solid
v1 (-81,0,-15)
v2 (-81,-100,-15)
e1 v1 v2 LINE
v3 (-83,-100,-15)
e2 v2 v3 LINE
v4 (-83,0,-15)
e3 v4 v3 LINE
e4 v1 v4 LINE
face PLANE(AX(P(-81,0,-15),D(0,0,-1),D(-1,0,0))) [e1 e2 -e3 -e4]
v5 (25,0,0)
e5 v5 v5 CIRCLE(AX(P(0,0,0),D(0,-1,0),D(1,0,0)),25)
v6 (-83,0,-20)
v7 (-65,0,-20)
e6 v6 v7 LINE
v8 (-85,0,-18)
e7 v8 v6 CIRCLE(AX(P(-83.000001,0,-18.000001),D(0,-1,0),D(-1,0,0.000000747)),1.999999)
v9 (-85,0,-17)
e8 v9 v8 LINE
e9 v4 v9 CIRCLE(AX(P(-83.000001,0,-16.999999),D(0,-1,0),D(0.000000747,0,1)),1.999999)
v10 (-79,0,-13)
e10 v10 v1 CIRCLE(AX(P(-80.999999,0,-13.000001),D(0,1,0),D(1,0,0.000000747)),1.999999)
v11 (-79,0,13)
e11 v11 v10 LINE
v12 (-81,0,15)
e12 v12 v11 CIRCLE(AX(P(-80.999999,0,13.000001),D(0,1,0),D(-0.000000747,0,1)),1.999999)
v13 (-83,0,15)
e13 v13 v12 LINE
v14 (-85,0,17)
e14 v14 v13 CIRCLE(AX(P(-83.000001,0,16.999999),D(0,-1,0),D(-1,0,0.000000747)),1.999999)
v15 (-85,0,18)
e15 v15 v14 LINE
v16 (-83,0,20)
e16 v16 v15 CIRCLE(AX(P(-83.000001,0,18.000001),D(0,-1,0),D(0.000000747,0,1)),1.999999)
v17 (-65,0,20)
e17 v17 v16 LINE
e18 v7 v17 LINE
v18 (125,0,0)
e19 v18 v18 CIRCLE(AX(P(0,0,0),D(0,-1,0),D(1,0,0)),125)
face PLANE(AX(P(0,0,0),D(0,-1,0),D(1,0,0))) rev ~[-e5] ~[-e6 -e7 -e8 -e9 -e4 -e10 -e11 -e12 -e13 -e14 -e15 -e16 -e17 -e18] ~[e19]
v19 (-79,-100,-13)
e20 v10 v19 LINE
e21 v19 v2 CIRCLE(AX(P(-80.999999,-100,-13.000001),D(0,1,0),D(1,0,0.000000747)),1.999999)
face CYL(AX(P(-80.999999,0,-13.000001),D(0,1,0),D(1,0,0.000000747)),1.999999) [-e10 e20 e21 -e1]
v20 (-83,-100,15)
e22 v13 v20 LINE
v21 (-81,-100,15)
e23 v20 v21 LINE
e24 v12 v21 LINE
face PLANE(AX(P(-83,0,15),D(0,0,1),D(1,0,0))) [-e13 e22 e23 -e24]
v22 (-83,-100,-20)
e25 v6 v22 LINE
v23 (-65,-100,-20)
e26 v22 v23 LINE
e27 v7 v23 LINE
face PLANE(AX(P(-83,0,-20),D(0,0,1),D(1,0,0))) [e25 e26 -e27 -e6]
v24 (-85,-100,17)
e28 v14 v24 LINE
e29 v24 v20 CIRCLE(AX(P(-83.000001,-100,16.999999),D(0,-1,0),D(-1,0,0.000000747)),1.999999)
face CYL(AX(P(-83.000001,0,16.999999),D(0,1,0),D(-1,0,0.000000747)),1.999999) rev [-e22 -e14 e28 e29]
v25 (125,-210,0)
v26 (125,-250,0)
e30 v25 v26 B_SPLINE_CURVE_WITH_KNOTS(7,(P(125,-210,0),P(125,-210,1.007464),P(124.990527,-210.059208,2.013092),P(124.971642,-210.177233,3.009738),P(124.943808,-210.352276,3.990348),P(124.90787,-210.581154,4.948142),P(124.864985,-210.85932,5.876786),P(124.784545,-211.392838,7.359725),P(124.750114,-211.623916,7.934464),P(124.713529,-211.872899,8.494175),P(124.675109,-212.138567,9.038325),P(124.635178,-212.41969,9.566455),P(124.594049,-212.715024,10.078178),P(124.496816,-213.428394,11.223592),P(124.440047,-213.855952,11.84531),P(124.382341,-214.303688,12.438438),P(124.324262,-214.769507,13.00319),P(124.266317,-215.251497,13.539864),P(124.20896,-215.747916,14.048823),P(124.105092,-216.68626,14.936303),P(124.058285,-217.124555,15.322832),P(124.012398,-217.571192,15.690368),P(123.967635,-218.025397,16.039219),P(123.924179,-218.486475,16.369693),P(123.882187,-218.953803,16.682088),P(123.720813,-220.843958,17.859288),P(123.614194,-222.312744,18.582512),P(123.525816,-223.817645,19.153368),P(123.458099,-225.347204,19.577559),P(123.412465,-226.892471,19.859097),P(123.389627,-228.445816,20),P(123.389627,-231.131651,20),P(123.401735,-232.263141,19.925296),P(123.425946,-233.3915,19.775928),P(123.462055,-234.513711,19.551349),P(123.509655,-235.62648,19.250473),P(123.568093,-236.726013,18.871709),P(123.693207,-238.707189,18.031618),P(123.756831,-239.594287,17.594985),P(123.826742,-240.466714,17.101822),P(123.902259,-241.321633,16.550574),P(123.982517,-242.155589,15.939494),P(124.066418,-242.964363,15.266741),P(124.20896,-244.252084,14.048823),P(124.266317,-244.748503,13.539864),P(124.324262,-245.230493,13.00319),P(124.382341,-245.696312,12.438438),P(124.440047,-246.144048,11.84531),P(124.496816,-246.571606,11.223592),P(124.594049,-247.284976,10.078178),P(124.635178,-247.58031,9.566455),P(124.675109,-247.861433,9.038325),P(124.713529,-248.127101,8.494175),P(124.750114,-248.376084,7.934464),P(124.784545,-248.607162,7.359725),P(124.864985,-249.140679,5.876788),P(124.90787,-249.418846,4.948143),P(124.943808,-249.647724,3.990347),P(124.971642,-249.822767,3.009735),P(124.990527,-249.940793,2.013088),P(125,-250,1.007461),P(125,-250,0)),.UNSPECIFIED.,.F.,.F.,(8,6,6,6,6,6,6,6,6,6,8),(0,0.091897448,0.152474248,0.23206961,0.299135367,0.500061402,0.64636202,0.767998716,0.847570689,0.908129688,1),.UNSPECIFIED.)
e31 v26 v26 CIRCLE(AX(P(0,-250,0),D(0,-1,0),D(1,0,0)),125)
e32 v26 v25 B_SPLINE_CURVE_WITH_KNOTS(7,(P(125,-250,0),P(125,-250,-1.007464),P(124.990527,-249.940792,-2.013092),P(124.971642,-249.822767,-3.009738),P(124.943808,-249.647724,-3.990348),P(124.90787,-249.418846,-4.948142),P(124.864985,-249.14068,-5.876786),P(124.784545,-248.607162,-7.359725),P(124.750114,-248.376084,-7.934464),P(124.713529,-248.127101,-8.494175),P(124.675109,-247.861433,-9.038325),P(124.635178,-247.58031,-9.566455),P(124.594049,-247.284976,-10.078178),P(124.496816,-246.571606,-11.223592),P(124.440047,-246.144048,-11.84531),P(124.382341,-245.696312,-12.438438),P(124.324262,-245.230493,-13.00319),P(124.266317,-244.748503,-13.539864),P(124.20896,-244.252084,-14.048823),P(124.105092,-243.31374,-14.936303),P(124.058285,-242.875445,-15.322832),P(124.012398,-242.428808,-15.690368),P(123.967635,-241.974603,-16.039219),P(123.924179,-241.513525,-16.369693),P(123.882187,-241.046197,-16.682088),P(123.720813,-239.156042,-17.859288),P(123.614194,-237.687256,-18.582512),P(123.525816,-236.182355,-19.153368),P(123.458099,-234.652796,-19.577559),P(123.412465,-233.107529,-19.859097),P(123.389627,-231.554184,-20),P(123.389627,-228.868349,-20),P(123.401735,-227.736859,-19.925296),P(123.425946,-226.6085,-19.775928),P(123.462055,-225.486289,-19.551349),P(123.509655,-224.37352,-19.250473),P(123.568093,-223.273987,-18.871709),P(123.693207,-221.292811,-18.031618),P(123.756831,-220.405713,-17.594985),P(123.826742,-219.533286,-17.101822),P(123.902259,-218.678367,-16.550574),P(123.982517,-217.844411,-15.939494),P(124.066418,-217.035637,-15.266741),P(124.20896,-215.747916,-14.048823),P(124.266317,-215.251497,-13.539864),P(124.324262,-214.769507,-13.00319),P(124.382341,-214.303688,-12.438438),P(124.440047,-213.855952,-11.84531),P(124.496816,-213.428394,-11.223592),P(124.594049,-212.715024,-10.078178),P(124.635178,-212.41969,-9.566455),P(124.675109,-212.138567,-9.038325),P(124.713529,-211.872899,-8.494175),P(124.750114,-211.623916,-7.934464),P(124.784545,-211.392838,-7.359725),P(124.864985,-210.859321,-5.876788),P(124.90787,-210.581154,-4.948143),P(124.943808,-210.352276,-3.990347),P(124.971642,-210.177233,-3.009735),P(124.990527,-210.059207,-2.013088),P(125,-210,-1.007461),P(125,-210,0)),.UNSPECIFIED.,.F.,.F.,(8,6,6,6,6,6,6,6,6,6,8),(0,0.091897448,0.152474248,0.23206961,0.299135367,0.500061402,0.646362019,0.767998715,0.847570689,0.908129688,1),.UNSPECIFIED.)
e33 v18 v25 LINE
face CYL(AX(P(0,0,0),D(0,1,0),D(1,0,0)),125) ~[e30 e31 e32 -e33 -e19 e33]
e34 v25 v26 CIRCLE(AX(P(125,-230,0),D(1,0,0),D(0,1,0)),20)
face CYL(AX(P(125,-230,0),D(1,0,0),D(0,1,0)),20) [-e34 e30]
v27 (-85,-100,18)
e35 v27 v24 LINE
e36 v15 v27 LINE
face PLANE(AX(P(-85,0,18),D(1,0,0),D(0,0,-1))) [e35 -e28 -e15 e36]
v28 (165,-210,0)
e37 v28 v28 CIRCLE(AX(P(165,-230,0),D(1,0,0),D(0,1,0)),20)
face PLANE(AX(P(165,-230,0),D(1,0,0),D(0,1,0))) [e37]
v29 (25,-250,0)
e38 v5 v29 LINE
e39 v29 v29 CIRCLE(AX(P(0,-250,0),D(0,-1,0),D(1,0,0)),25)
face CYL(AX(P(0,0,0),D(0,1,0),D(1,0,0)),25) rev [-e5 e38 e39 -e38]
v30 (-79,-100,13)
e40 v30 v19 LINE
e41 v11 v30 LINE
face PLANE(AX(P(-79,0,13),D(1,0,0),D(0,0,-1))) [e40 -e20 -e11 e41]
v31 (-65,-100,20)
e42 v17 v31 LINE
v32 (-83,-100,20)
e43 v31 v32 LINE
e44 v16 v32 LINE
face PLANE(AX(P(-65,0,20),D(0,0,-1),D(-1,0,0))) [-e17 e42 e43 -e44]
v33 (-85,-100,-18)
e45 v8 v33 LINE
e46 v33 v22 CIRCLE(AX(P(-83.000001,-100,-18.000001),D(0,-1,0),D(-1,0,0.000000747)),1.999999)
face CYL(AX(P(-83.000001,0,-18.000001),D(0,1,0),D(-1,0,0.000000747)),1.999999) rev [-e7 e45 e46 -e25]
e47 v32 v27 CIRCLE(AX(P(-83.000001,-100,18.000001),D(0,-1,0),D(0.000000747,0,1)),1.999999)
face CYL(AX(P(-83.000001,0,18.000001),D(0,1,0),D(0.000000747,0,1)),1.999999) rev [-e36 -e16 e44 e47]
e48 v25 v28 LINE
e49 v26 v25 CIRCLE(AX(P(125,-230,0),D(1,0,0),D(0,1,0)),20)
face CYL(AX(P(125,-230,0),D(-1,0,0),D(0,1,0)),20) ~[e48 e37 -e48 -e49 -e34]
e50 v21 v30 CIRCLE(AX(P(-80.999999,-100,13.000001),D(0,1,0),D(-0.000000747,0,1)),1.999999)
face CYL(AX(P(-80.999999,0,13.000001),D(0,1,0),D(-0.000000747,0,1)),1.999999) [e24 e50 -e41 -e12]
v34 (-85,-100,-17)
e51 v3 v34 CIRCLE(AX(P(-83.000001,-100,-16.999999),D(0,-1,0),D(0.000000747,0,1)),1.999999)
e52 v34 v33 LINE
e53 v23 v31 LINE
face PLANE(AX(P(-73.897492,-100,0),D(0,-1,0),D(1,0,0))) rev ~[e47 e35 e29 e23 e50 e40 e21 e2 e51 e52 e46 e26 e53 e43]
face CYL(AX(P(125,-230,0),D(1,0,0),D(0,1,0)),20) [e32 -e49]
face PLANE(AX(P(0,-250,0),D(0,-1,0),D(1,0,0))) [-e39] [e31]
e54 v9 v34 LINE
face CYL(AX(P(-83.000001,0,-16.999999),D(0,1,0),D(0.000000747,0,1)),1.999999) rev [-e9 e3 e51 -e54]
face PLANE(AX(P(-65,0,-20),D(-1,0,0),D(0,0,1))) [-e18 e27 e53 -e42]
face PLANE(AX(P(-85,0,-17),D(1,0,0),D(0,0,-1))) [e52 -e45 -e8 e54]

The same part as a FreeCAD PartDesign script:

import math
import FreeCAD as App
import Part
import Sketcher
from FreeCAD import Vector
Q = App.Units.Quantity

doc = App.newDocument("Part")
params = doc.addObject("Spreadsheet::Sheet", "Params")
for row, (alias, value) in enumerate([
    ("sketch1_diameter", "250 mm"),
    ("sketch1_diameter2", "50 mm"),
    ("pad1_length", "250 mm"),
    ("sketch2_radius", "1.999999 mm"),
    ("sketch2_width", "18 mm"),
    ("sketch2_width2", "2 mm"),
    ("sketch2_height", "1 mm"),
    ("sketch2_height2", "26 mm"),
    ("pocket1_length", "100 mm"),
    ("sketch3_diameter", "40 mm"),
    ("pad2_length", "40 mm"),
    ("pad2_length2", "10 mm"),
], start=1):
    params.set(f"A{row}", alias)
    params.set(f"B{row}", "=" + value)
    params.setAlias(f"B{row}", alias)

body = doc.addObject("PartDesign::Body", "Body")

# Sketch on XZ plane
sketch1 = body.newObject("Sketcher::SketchObject", "Sketch")
sketch1.AttachmentSupport = (doc.getObject("XZ_Plane"), [""])
sketch1.MapMode = "FlatFace"
sketch1.addGeometry([
    Part.Circle(Vector(0, 0, 0), Vector(0, 0, 1), 125),
    Part.Circle(Vector(0, 0, 0), Vector(0, 0, 1), 25),
], False)
sketch1.addConstraint([
    Sketcher.Constraint("Coincident", 0, 3, -1, 1),
    Sketcher.Constraint("Coincident", 1, 3, -1, 1),
    Sketcher.Constraint("Diameter", 0, Q("250 mm")),
    Sketcher.Constraint("Diameter", 1, Q("50 mm")),
])
sketch1.setExpression("Constraints[2]", "Params.sketch1_diameter")
sketch1.setExpression("Constraints[3]", "Params.sketch1_diameter2")
pad1 = body.newObject("PartDesign::Pad", "Pad")
pad1.Profile = sketch1
pad1.setExpression("Length", "Params.pad1_length")

# Sketch on XZ plane
sketch2 = body.newObject("Sketcher::SketchObject", "Sketch001")
sketch2.AttachmentSupport = (doc.getObject("XZ_Plane"), [""])
sketch2.MapMode = "FlatFace"
sketch2.addGeometry([
    Part.LineSegment(Vector(-65, 20, 0), Vector(-83, 20, 0)),  # 0
    Part.ArcOfCircle(Part.Circle(Vector(-83.000001, 18.000001, 0), Vector(0, 0, 1), 1.999999), math.radians(89.999957), math.radians(180.000043)),  # 1
    Part.LineSegment(Vector(-85, 18, 0), Vector(-85, 17, 0)),  # 2
    Part.ArcOfCircle(Part.Circle(Vector(-83.000001, 16.999999, 0), Vector(0, 0, 1), 1.999999), math.radians(179.999957), math.radians(270.000043)),  # 3
    Part.LineSegment(Vector(-83, 15, 0), Vector(-81, 15, 0)),  # 4
    Part.ArcOfCircle(Part.Circle(Vector(-80.999999, 13.000001, 0), Vector(0, 0, 1), 1.999999), math.radians(-0.000043), math.radians(90.000043)),  # 5
    Part.LineSegment(Vector(-79, 13, 0), Vector(-79, -13, 0)),  # 6
    Part.ArcOfCircle(Part.Circle(Vector(-80.999999, -13.000001, 0), Vector(0, 0, 1), 1.999999), math.radians(-90.000043), math.radians(0.000043)),  # 7
    Part.LineSegment(Vector(-81, -15, 0), Vector(-83, -15, 0)),  # 8
    Part.ArcOfCircle(Part.Circle(Vector(-83.000001, -16.999999, 0), Vector(0, 0, 1), 1.999999), math.radians(89.999957), math.radians(180.000043)),  # 9
    Part.LineSegment(Vector(-85, -17, 0), Vector(-85, -18, 0)),  # 10
    Part.ArcOfCircle(Part.Circle(Vector(-83.000001, -18.000001, 0), Vector(0, 0, 1), 1.999999), math.radians(179.999957), math.radians(270.000043)),  # 11
    Part.LineSegment(Vector(-83, -20, 0), Vector(-65, -20, 0)),  # 12
    Part.LineSegment(Vector(-65, -20, 0), Vector(-65, 20, 0)),  # 13
], False)
sketch2.addConstraint([
    Sketcher.Constraint("Tangent", 0, 2, 1, 1),
    Sketcher.Constraint("Tangent", 1, 2, 2, 1),
    Sketcher.Constraint("Tangent", 2, 2, 3, 1),
    Sketcher.Constraint("Tangent", 3, 2, 4, 1),
    Sketcher.Constraint("Tangent", 4, 2, 5, 2),
    Sketcher.Constraint("Tangent", 5, 1, 6, 1),
    Sketcher.Constraint("Tangent", 6, 2, 7, 2),
    Sketcher.Constraint("Tangent", 7, 1, 8, 1),
    Sketcher.Constraint("Tangent", 8, 2, 9, 1),
    Sketcher.Constraint("Tangent", 9, 2, 10, 1),
    Sketcher.Constraint("Tangent", 10, 2, 11, 1),
    Sketcher.Constraint("Tangent", 11, 2, 12, 1),
    Sketcher.Constraint("Coincident", 12, 2, 13, 1),
    Sketcher.Constraint("Coincident", 13, 2, 0, 1),
    Sketcher.Constraint("Horizontal", 0),
    Sketcher.Constraint("Vertical", 2),
    Sketcher.Constraint("Horizontal", 4),
    Sketcher.Constraint("Vertical", 6),
    Sketcher.Constraint("Horizontal", 8),
    Sketcher.Constraint("Vertical", 10),
    Sketcher.Constraint("Horizontal", 12),
    Sketcher.Constraint("Vertical", 13),
    Sketcher.Constraint("Equal", 1, 3),
    Sketcher.Constraint("Equal", 3, 5),
    Sketcher.Constraint("Equal", 5, 7),
    Sketcher.Constraint("Equal", 7, 9),
    Sketcher.Constraint("Equal", 9, 11),
    Sketcher.Constraint("Symmetric", 3, 3, 9, 3, -1),
    Sketcher.Constraint("Equal", 2, 10),
    Sketcher.Constraint("Radius", 1, Q("1.999999 mm")),
    Sketcher.Constraint("DistanceX", 0, 2, 0, 1, Q("18 mm")),
    Sketcher.Constraint("DistanceX", 4, 1, 4, 2, Q("2 mm")),
    Sketcher.Constraint("DistanceY", 2, 2, 2, 1, Q("1 mm")),
    Sketcher.Constraint("DistanceY", 6, 2, 6, 1, Q("26 mm")),
    Sketcher.Constraint("DistanceX", 1, 3, -1, 1, Q("83.000001 mm")),
])
sketch2.setExpression("Constraints[29]", "Params.sketch2_radius")
sketch2.setExpression("Constraints[30]", "Params.sketch2_width")
sketch2.setExpression("Constraints[31]", "Params.sketch2_width2")
sketch2.setExpression("Constraints[32]", "Params.sketch2_height")
sketch2.setExpression("Constraints[33]", "Params.sketch2_height2")
pocket1 = body.newObject("PartDesign::Pocket", "Pocket")
pocket1.Profile = sketch2
pocket1.setExpression("Length", "Params.pocket1_length")
pocket1.Reversed = True

# Sketch on YZ plane
sketch3 = body.newObject("Sketcher::SketchObject", "Sketch002")
sketch3.AttachmentSupport = (doc.getObject("YZ_Plane"), [""])
sketch3.MapMode = "FlatFace"
sketch3.AttachmentOffset = App.Placement(Vector(0, 0, 125), App.Rotation())
sketch3.addGeometry(Part.Circle(Vector(-230, 0, 0), Vector(0, 0, 1), 20), False)
sketch3.addConstraint([
    Sketcher.Constraint("PointOnObject", 0, 3, -1),
    Sketcher.Constraint("Diameter", 0, Q("40 mm")),
    Sketcher.Constraint("DistanceX", 0, 3, -1, 1, Q("230 mm")),
])
sketch3.setExpression("Constraints[1]", "Params.sketch3_diameter")
pad2 = body.newObject("PartDesign::Pad", "Pad001")
pad2.Profile = sketch3
pad2.Type = "TwoLengths"
pad2.setExpression("Length", "Params.pad2_length")
pad2.setExpression("Length2", "Params.pad2_length2")

doc.recompute()
